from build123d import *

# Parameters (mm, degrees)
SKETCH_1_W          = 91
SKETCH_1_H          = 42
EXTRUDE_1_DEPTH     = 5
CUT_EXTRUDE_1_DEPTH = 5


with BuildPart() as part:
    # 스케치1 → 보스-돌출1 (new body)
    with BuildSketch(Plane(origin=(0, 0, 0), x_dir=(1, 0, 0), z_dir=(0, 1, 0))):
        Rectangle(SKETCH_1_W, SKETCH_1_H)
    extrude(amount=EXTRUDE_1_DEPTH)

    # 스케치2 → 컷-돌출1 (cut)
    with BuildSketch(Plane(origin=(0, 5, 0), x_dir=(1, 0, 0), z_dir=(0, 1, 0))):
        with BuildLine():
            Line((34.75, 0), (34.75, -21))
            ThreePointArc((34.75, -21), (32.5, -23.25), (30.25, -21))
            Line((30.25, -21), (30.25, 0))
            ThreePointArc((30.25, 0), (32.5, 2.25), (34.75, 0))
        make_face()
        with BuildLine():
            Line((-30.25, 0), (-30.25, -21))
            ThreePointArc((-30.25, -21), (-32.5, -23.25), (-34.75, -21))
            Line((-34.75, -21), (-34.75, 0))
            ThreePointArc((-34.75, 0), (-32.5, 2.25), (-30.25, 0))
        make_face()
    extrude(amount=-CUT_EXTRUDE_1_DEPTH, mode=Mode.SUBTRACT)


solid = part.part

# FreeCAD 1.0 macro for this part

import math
import FreeCAD as App
import Part
import Sketcher
from FreeCAD import Vector
Q = App.Units.Quantity

doc = App.newDocument("Part")
body = doc.addObject("PartDesign::Body", "Body")

sketch1 = body.newObject("Sketcher::SketchObject", "Sketch")
sketch1.AttachmentSupport = (doc.getObject("XZ_Plane"), [""])
sketch1.MapMode = "FlatFace"
sketch1.addGeometry([
    Part.LineSegment(Vector(-46, -21, 0), Vector(-46, 21, 0)),
    Part.LineSegment(Vector(-46, 21, 0), Vector(46, 21, 0)),
    Part.LineSegment(Vector(46, 21, 0), Vector(46, -21, 0)),
    Part.LineSegment(Vector(46, -21, 0), Vector(-46, -21, 0)),
], False)
sketch1.addConstraint([
    Sketcher.Constraint("Coincident", 0, 2, 1, 1),
    Sketcher.Constraint("Coincident", 1, 2, 2, 1),
    Sketcher.Constraint("Coincident", 2, 2, 3, 1),
    Sketcher.Constraint("Coincident", 3, 2, 0, 1),
    Sketcher.Constraint("Vertical", 0),
    Sketcher.Constraint("Horizontal", 1),
    Sketcher.Constraint("Vertical", 2),
    Sketcher.Constraint("Horizontal", 3),
    Sketcher.Constraint("Symmetric", 0, 2, 2, 2, -1, 1),
    Sketcher.Constraint("DistanceX", 1, 1, 1, 2, Q("91 mm")),
    Sketcher.Constraint("DistanceY", 0, 1, 0, 2, Q("42 mm")),
])
pad1 = body.newObject("PartDesign::Pad", "Pad")
pad1.Profile = sketch1
pad1.Length = 5
pad1.Reversed = True

sketch2 = body.newObject("Sketcher::SketchObject", "Sketch001")
sketch2.AttachmentSupport = (doc.getObject("XZ_Plane"), [""])
sketch2.MapMode = "FlatFace"
sketch2.AttachmentOffset = App.Placement(Vector(0, 0, -5), App.Rotation())
sketch2.addGeometry([
    Part.LineSegment(Vector(34.8, 21, 0), Vector(34.8, 0, 0)),
    Part.ArcOfCircle(Part.Circle(Vector(32.5, 0, 0), Vector(0, 0, 1), 2.2), math.radians(180), math.radians(360)),
    Part.LineSegment(Vector(30.2, 0, 0), Vector(30.2, 21, 0)),
    Part.ArcOfCircle(Part.Circle(Vector(32.5, 21, 0), Vector(0, 0, 1), 2.2), math.radians(0), math.radians(180)),
    Part.LineSegment(Vector(-30.2, 21, 0), Vector(-30.2, 0, 0)),
    Part.ArcOfCircle(Part.Circle(Vector(-32.5, 0, 0), Vector(0, 0, 1), 2.2), math.radians(180), math.radians(360)),
    Part.LineSegment(Vector(-34.8, 0, 0), Vector(-34.8, 21, 0)),
    Part.ArcOfCircle(Part.Circle(Vector(-32.5, 21, 0), Vector(0, 0, 1), 2.2), math.radians(0), math.radians(180)),
], False)
sketch2.addConstraint([
    Sketcher.Constraint("Tangent", 0, 2, 1, 2),
    Sketcher.Constraint("Tangent", 1, 1, 2, 1),
    Sketcher.Constraint("Tangent", 2, 2, 3, 2),
    Sketcher.Constraint("Tangent", 3, 1, 0, 1),
    Sketcher.Constraint("Tangent", 4, 2, 5, 2),
    Sketcher.Constraint("Tangent", 5, 1, 6, 1),
    Sketcher.Constraint("Tangent", 6, 2, 7, 2),
    Sketcher.Constraint("Tangent", 7, 1, 4, 1),
    Sketcher.Constraint("Vertical", 0),
    Sketcher.Constraint("Vertical", 2),
    Sketcher.Constraint("Vertical", 4),
    Sketcher.Constraint("Vertical", 6),
    Sketcher.Constraint("Equal", 3, 5),
    Sketcher.Constraint("Symmetric", 1, 3, 5, 3, -1, 1),
    Sketcher.Constraint("PointOnObject", 1, 3, -1),
    Sketcher.Constraint("Horizontal", 3, 3, 7, 3),
    Sketcher.Constraint("DistanceY", 0, 2, 0, 1, Q("21 mm")),
    Sketcher.Constraint("Radius", 1, Q("2.25 mm")),
    Sketcher.Constraint("DistanceX", 5, 3, 1, 3, Q("65 mm")),
])
pocket1 = body.newObject("PartDesign::Pocket", "Pocket")
pocket1.Profile = sketch2
pocket1.Length = 5
pocket1.Reversed = True

doc.recompute()
